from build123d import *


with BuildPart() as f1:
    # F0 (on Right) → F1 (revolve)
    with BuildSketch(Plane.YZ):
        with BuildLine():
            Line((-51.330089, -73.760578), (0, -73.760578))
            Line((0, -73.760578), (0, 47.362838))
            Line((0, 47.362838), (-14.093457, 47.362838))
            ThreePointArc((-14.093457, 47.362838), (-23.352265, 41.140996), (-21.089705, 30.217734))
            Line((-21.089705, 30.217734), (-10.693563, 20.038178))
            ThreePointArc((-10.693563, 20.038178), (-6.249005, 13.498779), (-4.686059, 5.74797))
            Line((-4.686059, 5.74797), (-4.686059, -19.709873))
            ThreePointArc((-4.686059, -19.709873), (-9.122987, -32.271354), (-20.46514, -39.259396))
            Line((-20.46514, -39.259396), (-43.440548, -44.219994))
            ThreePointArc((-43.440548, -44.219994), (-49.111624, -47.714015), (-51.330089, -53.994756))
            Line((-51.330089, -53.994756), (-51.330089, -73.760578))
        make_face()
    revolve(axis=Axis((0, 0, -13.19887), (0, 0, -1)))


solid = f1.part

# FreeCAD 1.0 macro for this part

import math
import FreeCAD as App
import Part
import Sketcher
from FreeCAD import Vector
Q = App.Units.Quantity

doc = App.newDocument("Part")
body = doc.addObject("PartDesign::Body", "Body")

sketch1 = doc.addObject("Sketcher::SketchObject", "Sketch")
body.addObject(sketch1)
sketch1.AttachmentSupport = (doc.YZ_Plane, [""])
sketch1.MapMode = "FlatFace"
sketch1.addGeometry(Part.LineSegment(Vector(-51, -74, 0), Vector(0, -74, 0)), False)
sketch1.addGeometry(Part.LineSegment(Vector(0, -74, 0), Vector(0, 47, 0)), False)
sketch1.addGeometry(Part.LineSegment(Vector(0, 47, 0), Vector(-14, 47, 0)), False)
sketch1.addGeometry(Part.ArcOfCircle(Part.Circle(Vector(-14, 37, 0), Vector(0, 0, 1), 10), math.radians(90), math.radians(226)), False)
sketch1.addGeometry(Part.LineSegment(Vector(-21, 30, 0), Vector(-11, 20, 0)), False)
sketch1.addGeometry(Part.ArcOfCircle(Part.Circle(Vector(-25, 6, 0), Vector(0, 0, 1), 20), math.radians(0), math.radians(46)), False)
sketch1.addGeometry(Part.LineSegment(Vector(-5, 6, 0), Vector(-5, -20, 0)), False)
sketch1.addGeometry(Part.ArcOfCircle(Part.Circle(Vector(-25, -20, 0), Vector(0, 0, 1), 20), math.radians(-78), math.radians(0)), False)
sketch1.addGeometry(Part.LineSegment(Vector(-20, -39, 0), Vector(-43, -44, 0)), False)
sketch1.addGeometry(Part.ArcOfCircle(Part.Circle(Vector(-41, -54, 0), Vector(0, 0, 1), 10), math.radians(102), math.radians(180)), False)
sketch1.addGeometry(Part.LineSegment(Vector(-51, -54, 0), Vector(-51, -74, 0)), False)
sketch1.addConstraint(Sketcher.Constraint("Coincident", 0, 2, 1, 1))
sketch1.addConstraint(Sketcher.Constraint("Coincident", 1, 2, 2, 1))
sketch1.addConstraint(Sketcher.Constraint("Tangent", 2, 2, 3, 1))
sketch1.addConstraint(Sketcher.Constraint("Tangent", 3, 2, 4, 1))
sketch1.addConstraint(Sketcher.Constraint("Tangent", 4, 2, 5, 2))
sketch1.addConstraint(Sketcher.Constraint("Tangent", 5, 1, 6, 1))
sketch1.addConstraint(Sketcher.Constraint("Tangent", 6, 2, 7, 2))
sketch1.addConstraint(Sketcher.Constraint("Tangent", 7, 1, 8, 1))
sketch1.addConstraint(Sketcher.Constraint("Tangent", 8, 2, 9, 1))
sketch1.addConstraint(Sketcher.Constraint("Tangent", 9, 2, 10, 1))
sketch1.addConstraint(Sketcher.Constraint("Coincident", 10, 2, 0, 1))
sketch1.addConstraint(Sketcher.Constraint("Horizontal", 0))
sketch1.addConstraint(Sketcher.Constraint("Vertical", 1))
sketch1.addConstraint(Sketcher.Constraint("Horizontal", 2))
sketch1.addConstraint(Sketcher.Constraint("Vertical", 6))
sketch1.addConstraint(Sketcher.Constraint("Vertical", 10))
sketch1.addConstraint(Sketcher.Constraint("Equal", 5, 7))
sketch1.addConstraint(Sketcher.Constraint("PointOnObject", 0, 2, -2))
sketch1.addConstraint(Sketcher.Constraint("Radius", 3, Q("10 mm")))
sketch1.addConstraint(Sketcher.Constraint("Radius", 5, Q("19.999998 mm")))
sketch1.addConstraint(Sketcher.Constraint("Radius", 9, Q("10.000002 mm")))
sketch1.addConstraint(Sketcher.Constraint("DistanceX", 0, 1, 0, 2, Q("51.330089 mm")))
sketch1.addConstraint(Sketcher.Constraint("DistanceY", 10, 2, 10, 1, Q("19.765822 mm")))
sketch1.addConstraint(Sketcher.Constraint("DistanceX", 5, 3, 3, 3, Q("10.5926 mm")))
sketch1.addConstraint(Sketcher.Constraint("Distance", 4, Q("14.550022 mm")))
sketch1.addConstraint(Sketcher.Constraint("DistanceX", 2, 2, 2, 1, Q("14.093457 mm")))
sketch1.addConstraint(Sketcher.Constraint("DistanceY", 1, 1, 1, 2, Q("121.123416 mm")))
sketch1.addConstraint(Sketcher.Constraint("DistanceY", 6, 2, 6, 1, Q("25.457843 mm")))
sketch1.addConstraint(Sketcher.Constraint("DistanceY", -1, 1, 3, 3, Q("37.362838 mm")))
revolution = doc.addObject("PartDesign::Revolution", "Revolution")
body.addObject(revolution)
revolution.Profile = sketch1
revolution.ReferenceAxis = (sketch1, ["V_Axis"])
revolution.Angle = 360

doc.recompute()
